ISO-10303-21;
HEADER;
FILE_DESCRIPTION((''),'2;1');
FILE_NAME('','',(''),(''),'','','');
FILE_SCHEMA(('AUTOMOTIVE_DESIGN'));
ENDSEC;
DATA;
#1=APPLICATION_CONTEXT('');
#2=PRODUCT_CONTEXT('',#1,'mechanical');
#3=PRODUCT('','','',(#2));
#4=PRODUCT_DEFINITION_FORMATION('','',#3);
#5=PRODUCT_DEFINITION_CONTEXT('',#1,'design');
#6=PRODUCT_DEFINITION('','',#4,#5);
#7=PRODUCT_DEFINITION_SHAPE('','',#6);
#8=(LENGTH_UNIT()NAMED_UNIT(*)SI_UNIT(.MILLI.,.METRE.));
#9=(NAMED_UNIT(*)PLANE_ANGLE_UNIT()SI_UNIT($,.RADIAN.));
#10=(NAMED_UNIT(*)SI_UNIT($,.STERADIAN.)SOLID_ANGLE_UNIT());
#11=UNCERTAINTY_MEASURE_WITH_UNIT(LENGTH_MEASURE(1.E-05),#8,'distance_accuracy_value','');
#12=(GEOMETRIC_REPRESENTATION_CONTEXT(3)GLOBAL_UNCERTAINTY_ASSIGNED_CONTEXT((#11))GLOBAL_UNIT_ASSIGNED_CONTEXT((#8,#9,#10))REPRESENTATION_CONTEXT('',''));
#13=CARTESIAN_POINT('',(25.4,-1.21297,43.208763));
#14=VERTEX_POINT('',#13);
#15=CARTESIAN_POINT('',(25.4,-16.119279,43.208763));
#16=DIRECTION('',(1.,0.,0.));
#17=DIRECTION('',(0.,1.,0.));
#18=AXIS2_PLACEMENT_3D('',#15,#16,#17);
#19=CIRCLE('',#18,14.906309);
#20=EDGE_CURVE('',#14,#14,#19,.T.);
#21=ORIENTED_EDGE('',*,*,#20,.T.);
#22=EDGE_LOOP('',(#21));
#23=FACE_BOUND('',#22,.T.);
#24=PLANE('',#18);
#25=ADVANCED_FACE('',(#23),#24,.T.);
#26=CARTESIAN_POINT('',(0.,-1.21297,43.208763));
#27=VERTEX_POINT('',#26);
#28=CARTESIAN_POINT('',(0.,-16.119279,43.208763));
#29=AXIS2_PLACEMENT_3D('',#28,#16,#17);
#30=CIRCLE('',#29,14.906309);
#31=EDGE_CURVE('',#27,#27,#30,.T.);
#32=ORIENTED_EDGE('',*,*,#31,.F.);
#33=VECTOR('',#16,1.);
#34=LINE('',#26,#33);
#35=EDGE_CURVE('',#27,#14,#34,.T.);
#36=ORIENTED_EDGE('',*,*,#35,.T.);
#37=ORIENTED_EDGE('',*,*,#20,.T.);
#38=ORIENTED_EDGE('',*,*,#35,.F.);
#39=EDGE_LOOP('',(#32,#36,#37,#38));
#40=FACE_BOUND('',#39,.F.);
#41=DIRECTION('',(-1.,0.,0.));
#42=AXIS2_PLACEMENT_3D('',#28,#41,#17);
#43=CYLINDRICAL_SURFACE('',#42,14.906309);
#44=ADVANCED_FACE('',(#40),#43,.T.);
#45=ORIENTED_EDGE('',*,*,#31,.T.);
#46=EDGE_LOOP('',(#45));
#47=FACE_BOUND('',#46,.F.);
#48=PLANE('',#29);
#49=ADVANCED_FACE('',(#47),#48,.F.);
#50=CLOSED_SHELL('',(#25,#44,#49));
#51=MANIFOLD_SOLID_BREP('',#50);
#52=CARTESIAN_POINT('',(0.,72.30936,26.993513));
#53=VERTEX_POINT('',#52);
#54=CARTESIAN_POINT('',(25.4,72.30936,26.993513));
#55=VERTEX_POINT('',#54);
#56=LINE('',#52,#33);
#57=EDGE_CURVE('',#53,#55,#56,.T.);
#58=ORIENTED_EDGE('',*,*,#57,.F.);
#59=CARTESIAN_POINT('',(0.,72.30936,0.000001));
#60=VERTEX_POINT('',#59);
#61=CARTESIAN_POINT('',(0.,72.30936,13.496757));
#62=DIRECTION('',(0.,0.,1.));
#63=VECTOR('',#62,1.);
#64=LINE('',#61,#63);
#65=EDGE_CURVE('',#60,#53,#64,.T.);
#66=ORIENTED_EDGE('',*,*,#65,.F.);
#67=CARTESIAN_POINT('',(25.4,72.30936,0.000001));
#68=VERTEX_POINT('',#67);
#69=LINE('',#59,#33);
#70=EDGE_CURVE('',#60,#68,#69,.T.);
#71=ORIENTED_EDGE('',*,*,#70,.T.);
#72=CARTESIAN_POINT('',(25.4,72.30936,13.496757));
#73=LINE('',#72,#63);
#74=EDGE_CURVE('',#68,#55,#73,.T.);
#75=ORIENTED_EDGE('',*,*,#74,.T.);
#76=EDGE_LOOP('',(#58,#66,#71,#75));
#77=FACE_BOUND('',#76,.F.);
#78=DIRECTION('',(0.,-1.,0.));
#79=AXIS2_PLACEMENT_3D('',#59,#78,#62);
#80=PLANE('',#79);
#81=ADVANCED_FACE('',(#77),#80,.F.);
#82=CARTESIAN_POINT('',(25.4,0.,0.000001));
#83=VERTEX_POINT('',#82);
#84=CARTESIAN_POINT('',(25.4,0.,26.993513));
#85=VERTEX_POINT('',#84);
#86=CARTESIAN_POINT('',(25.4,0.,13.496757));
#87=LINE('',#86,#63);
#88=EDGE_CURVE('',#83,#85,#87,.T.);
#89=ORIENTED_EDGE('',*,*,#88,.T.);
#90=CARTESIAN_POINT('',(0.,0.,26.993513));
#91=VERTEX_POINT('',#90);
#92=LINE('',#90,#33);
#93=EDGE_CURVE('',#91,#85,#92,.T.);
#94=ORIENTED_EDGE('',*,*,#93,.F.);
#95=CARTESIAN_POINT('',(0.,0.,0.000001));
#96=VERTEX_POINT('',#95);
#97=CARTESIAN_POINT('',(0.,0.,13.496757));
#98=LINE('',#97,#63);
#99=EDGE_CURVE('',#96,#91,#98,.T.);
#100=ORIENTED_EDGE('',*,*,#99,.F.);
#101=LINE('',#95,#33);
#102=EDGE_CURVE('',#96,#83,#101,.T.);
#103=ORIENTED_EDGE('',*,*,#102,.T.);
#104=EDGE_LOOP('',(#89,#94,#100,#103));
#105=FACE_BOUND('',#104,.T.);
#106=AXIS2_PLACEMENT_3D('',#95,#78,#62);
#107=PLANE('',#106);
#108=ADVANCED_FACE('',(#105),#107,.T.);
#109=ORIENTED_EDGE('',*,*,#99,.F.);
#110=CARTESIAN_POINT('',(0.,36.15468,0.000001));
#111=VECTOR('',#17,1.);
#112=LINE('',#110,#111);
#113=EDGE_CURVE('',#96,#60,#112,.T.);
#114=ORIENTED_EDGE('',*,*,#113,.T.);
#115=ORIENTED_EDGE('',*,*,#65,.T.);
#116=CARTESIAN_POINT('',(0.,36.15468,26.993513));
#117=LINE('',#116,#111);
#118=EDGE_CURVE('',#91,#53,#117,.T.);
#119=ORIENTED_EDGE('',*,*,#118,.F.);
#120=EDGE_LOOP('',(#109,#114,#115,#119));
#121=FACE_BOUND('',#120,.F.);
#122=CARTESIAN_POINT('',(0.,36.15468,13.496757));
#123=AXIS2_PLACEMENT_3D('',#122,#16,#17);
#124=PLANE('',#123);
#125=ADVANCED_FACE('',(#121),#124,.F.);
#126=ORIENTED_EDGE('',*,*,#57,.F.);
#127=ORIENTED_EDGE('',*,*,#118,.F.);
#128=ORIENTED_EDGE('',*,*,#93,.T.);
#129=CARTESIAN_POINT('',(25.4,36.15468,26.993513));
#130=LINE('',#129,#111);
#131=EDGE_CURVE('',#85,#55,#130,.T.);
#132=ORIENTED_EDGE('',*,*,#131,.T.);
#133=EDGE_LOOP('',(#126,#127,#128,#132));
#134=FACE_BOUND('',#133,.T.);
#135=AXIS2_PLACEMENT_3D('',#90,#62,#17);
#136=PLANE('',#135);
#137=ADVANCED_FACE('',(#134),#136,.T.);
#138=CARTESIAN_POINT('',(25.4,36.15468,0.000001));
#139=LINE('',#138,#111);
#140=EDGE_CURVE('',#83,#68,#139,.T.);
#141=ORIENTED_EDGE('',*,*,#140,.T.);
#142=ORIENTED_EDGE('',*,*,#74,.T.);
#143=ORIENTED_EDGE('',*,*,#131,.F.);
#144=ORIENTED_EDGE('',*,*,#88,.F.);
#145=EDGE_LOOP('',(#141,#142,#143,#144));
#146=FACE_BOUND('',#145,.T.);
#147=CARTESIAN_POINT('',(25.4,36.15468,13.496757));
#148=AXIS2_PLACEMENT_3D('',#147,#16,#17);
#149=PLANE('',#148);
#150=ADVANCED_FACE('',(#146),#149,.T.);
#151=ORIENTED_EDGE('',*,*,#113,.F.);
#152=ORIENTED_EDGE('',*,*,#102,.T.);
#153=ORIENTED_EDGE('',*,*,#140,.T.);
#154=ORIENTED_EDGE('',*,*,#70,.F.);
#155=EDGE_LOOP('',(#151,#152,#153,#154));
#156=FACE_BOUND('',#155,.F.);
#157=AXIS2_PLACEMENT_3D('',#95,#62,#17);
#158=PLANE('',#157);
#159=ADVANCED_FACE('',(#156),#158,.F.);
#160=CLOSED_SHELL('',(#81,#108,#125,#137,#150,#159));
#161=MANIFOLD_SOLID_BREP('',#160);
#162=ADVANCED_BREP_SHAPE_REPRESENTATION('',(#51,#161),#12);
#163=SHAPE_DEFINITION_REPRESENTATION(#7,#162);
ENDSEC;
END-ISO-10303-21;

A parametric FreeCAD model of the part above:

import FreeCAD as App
import Part
import Sketcher

V = App.Vector

doc = App.newDocument("Part")
params = doc.addObject("Spreadsheet::Sheet", "Params")
for row, (alias, value) in enumerate([
    ("pad1_length", "1 in"),
    ("pad2_length", "1 in"),
], start=1):
    params.set(f"A{row}", alias)
    params.set(f"B{row}", "=" + value)
    params.setAlias(f"B{row}", alias)

body = doc.addObject("PartDesign::Body", "Body")

sketch1 = body.newObject("Sketcher::SketchObject", "Sketch")
sketch1.AttachmentSupport = (doc.getObject("YZ_Plane"), [""])
sketch1.MapMode = "FlatFace"
sketch1.addGeometry(Part.LineSegment(V(0, 27, 0), V(0, 0, 0)), False)
sketch1.addGeometry(Part.LineSegment(V(0, 0, 0), V(72, 0, 0)), False)
sketch1.addGeometry(Part.LineSegment(V(72, 0, 0), V(72, 27, 0)), False)
sketch1.addGeometry(Part.LineSegment(V(72, 27, 0), V(0, 27, 0)), False)
sketch1.addConstraint(Sketcher.Constraint("Coincident", 0, 2, 1, 1))
sketch1.addConstraint(Sketcher.Constraint("Coincident", 1, 2, 2, 1))
sketch1.addConstraint(Sketcher.Constraint("Coincident", 2, 2, 3, 1))
sketch1.addConstraint(Sketcher.Constraint("Coincident", 3, 2, 0, 1))
sketch1.addConstraint(Sketcher.Constraint("Vertical", 0))
sketch1.addConstraint(Sketcher.Constraint("Horizontal", 1))
sketch1.addConstraint(Sketcher.Constraint("Vertical", 2))
sketch1.addConstraint(Sketcher.Constraint("Horizontal", 3))
sketch1.addConstraint(Sketcher.Constraint("Coincident", 0, 2, -1, 1))
sketch1.addConstraint(Sketcher.Constraint("DistanceX", 1, 1, 1, 2, 72.30936))
sketch1.addConstraint(Sketcher.Constraint("DistanceY", 0, 2, 0, 1, 26.993513))
pad1 = body.newObject("PartDesign::Pad", "Pad")
pad1.Profile = sketch1
pad1.setExpression("Length", "Params.pad1_length")
body2 = doc.addObject("PartDesign::Body", "Body001")

sketch2 = body2.newObject("Sketcher::SketchObject", "Sketch001")
sketch2.AttachmentSupport = (doc.getObject("YZ_Plane001"), [""])
sketch2.MapMode = "FlatFace"
sketch2.addGeometry(Part.Circle(V(-16, 43, 0), V(0, 0, 1), 15), False)
sketch2.addConstraint(Sketcher.Constraint("Diameter", 0, 29.812618))
sketch2.addConstraint(Sketcher.Constraint("DistanceX", 0, 3, -1, 1, 16.119279))
sketch2.addConstraint(Sketcher.Constraint("DistanceY", -1, 1, 0, 3, 43.208763))
pad2 = body2.newObject("PartDesign::Pad", "Pad001")
pad2.Profile = sketch2
pad2.setExpression("Length", "Params.pad2_length")

doc.recompute()
